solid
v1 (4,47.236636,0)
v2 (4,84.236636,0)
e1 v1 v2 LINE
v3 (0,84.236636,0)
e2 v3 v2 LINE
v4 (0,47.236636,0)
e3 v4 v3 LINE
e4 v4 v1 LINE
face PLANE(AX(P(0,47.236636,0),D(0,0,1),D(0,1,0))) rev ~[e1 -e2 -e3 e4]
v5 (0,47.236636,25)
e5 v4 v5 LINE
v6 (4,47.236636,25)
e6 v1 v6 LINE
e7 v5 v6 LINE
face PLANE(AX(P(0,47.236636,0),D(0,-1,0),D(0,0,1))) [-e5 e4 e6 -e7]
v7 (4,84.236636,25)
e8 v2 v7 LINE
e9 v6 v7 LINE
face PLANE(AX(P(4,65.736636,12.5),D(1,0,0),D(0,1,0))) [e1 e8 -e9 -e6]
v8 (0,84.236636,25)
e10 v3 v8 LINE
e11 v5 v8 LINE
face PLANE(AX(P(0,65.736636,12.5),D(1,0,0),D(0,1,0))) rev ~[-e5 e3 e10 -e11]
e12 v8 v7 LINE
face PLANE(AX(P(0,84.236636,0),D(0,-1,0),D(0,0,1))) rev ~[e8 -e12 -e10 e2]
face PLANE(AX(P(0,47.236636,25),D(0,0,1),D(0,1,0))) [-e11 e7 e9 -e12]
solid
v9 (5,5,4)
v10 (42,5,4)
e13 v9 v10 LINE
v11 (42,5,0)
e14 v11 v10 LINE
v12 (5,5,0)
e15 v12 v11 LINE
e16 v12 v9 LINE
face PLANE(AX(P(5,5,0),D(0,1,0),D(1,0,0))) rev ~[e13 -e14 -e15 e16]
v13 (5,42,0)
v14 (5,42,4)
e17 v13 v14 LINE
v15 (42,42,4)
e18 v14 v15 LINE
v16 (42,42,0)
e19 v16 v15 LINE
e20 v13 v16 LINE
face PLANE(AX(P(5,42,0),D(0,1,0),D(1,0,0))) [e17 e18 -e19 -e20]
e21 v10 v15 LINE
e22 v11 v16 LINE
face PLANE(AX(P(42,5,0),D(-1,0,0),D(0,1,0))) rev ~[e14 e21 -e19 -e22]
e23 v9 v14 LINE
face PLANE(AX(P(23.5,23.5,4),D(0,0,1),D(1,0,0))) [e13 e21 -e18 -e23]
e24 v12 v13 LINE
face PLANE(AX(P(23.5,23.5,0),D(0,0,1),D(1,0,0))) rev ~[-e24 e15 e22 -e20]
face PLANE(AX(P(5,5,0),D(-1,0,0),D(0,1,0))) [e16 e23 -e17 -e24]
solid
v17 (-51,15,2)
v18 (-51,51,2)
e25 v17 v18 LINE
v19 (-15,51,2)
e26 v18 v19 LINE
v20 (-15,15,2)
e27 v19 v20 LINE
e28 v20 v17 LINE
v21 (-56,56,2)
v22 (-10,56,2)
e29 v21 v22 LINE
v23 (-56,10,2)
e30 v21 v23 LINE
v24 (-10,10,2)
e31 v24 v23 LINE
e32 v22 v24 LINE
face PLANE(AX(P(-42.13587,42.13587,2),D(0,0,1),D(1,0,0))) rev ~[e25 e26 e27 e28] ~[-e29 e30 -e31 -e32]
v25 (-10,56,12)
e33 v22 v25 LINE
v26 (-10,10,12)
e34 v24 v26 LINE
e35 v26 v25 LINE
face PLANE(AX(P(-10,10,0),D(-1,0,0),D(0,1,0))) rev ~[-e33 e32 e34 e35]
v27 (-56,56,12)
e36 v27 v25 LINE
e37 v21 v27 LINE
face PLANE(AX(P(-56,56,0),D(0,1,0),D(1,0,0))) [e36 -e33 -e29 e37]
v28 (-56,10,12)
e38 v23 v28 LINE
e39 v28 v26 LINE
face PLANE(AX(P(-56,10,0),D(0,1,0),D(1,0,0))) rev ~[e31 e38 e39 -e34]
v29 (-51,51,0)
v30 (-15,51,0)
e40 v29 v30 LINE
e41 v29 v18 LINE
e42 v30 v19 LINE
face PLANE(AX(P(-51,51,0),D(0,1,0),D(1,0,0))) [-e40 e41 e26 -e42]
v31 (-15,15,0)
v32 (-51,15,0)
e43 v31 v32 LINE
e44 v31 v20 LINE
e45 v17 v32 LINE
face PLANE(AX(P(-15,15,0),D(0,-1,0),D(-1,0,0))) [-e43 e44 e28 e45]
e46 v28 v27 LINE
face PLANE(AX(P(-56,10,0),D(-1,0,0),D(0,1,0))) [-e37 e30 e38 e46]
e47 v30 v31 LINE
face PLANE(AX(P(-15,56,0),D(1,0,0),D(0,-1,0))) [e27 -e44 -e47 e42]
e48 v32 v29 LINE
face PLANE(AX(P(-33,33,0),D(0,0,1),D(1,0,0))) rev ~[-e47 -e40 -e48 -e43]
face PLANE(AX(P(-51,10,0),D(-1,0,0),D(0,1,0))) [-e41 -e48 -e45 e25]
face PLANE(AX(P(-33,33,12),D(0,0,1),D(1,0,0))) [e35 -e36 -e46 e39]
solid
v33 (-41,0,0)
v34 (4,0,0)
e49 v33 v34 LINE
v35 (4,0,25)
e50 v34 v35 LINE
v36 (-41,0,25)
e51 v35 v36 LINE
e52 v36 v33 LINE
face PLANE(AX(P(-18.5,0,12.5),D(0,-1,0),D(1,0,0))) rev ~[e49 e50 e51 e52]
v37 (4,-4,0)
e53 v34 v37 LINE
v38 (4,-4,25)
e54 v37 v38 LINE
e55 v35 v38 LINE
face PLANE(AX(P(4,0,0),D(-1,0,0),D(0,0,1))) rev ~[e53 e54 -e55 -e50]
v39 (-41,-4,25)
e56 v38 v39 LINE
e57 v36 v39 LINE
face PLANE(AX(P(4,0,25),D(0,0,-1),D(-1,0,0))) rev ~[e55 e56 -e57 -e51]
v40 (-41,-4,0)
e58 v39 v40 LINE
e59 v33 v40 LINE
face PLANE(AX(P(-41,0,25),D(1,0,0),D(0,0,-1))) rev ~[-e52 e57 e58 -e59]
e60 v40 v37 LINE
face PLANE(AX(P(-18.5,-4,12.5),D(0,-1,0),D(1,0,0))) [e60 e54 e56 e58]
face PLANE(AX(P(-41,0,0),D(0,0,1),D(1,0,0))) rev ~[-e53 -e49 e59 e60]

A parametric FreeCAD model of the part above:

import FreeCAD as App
import Part
import Sketcher

V = App.Vector


def add_polygon(sketch, points):
    """Adds a closed chain of lines whose ends are joined by coincident constraints."""
    first, n = sketch.GeometryCount, len(points)
    for a, b in zip(points, points[1:] + points[:1]):
        sketch.addGeometry(Part.LineSegment(App.Vector(*a, 0), App.Vector(*b, 0)), False)
    for i in range(n):
        sketch.addConstraint(Sketcher.Constraint("Coincident", first + i, 2, first + (i + 1) % n, 1))

doc = App.newDocument("Part")
body = doc.addObject("PartDesign::Body", "Body")

# Sketch on XY plane
sketch1 = doc.addObject("Sketcher::SketchObject", "Sketch")
body.addObject(sketch1)
sketch1.AttachmentSupport = (doc.XY_Plane, [""])
sketch1.MapMode = "FlatFace"
add_polygon(sketch1, [(5, 42), (5, 5), (42, 5), (42, 42)])  # lines 0-3
sketch1.addConstraint(Sketcher.Constraint("Vertical", 0))
sketch1.addConstraint(Sketcher.Constraint("Horizontal", 1))
sketch1.addConstraint(Sketcher.Constraint("Vertical", 2))
sketch1.addConstraint(Sketcher.Constraint("Horizontal", 3))
sketch1.addConstraint(Sketcher.Constraint("Equal", 3, 0))
sketch1.addConstraint(Sketcher.Constraint("DistanceX", 1, 1, 1, 2, 37.0))
sketch1.addConstraint(Sketcher.Constraint("DistanceX", -1, 1, 0, 2, 5.0))
sketch1.addConstraint(Sketcher.Constraint("DistanceY", -1, 1, 0, 2, 5.0))
pad1 = doc.addObject("PartDesign::Pad", "Pad")
body.addObject(pad1)
pad1.Profile = sketch1
pad1.Length = 4
body2 = doc.addObject("PartDesign::Body", "Body001")

# Sketch on XZ plane
sketch2 = doc.addObject("Sketcher::SketchObject", "Sketch001")
body2.addObject(sketch2)
sketch2.AttachmentSupport = (doc.getObject("XZ_Plane001"), [""])
sketch2.MapMode = "FlatFace"
add_polygon(sketch2, [(-41, 0), (4, 0), (4, 25), (-41, 25)])  # lines 0-3
sketch2.addConstraint(Sketcher.Constraint("Horizontal", 0))
sketch2.addConstraint(Sketcher.Constraint("Vertical", 1))
sketch2.addConstraint(Sketcher.Constraint("Horizontal", 2))
sketch2.addConstraint(Sketcher.Constraint("Vertical", 3))
sketch2.addConstraint(Sketcher.Constraint("PointOnObject", 0, 2, -1))
sketch2.addConstraint(Sketcher.Constraint("DistanceX", 0, 1, 0, 2, 45.0))
sketch2.addConstraint(Sketcher.Constraint("DistanceY", 1, 1, 1, 2, 25.0))
sketch2.addConstraint(Sketcher.Constraint("DistanceX", -1, 1, 0, 2, 4.0))
pad2 = doc.addObject("PartDesign::Pad", "Pad001")
body2.addObject(pad2)
pad2.Profile = sketch2
pad2.Length = 4
body3 = doc.addObject("PartDesign::Body", "Body002")

# Sketch on YZ plane
sketch3 = doc.addObject("Sketcher::SketchObject", "Sketch002")
body3.addObject(sketch3)
sketch3.AttachmentSupport = (doc.getObject("YZ_Plane002"), [""])
sketch3.MapMode = "FlatFace"
add_polygon(sketch3, [(47.236636, 25), (47.236636, 0), (84.236636, 0), (84.236636, 25)])  # lines 0-3
sketch3.addConstraint(Sketcher.Constraint("Vertical", 0))
sketch3.addConstraint(Sketcher.Constraint("Horizontal", 1))
sketch3.addConstraint(Sketcher.Constraint("Vertical", 2))
sketch3.addConstraint(Sketcher.Constraint("Horizontal", 3))
sketch3.addConstraint(Sketcher.Constraint("PointOnObject", 0, 2, -1))
sketch3.addConstraint(Sketcher.Constraint("DistanceX", 1, 1, 1, 2, 37.0))
sketch3.addConstraint(Sketcher.Constraint("DistanceY", 0, 2, 0, 1, 25.0))
sketch3.addConstraint(Sketcher.Constraint("DistanceX", -1, 1, 0, 2, 47.236636))
pad3 = doc.addObject("PartDesign::Pad", "Pad002")
body3.addObject(pad3)
pad3.Profile = sketch3
pad3.Length = 4
body4 = doc.addObject("PartDesign::Body", "Body003")

# Sketch on XY plane
sketch4 = doc.addObject("Sketcher::SketchObject", "Sketch003")
body4.addObject(sketch4)
sketch4.AttachmentSupport = (doc.getObject("XY_Plane003"), [""])
sketch4.MapMode = "FlatFace"
add_polygon(sketch4, [(-56, 56), (-56, 10), (-10, 10), (-10, 56)])  # lines 0-3
sketch4.addConstraint(Sketcher.Constraint("Vertical", 0))
sketch4.addConstraint(Sketcher.Constraint("Horizontal", 1))
sketch4.addConstraint(Sketcher.Constraint("Vertical", 2))
sketch4.addConstraint(Sketcher.Constraint("Horizontal", 3))
sketch4.addConstraint(Sketcher.Constraint("Equal", 3, 0))
sketch4.addConstraint(Sketcher.Constraint("DistanceX", 1, 1, 1, 2, 46.0))
sketch4.addConstraint(Sketcher.Constraint("DistanceX", 0, 2, -1, 1, 56.0))
sketch4.addConstraint(Sketcher.Constraint("DistanceY", -1, 1, 0, 2, 10.0))
pad4 = doc.addObject("PartDesign::Pad", "Pad003")
body4.addObject(pad4)
pad4.Profile = sketch4
pad4.Length = 12

# Sketch on XY plane
sketch5 = doc.addObject("Sketcher::SketchObject", "Sketch004")
body4.addObject(sketch5)
sketch5.AttachmentSupport = (doc.getObject("XY_Plane003"), [""])
sketch5.MapMode = "FlatFace"
add_polygon(sketch5, [(-10, 10), (-10, 56), (-15, 56), (-15, 15), (-56, 15), (-56, 10)])  # lines 0-5
sketch5.addConstraint(Sketcher.Constraint("Vertical", 0))
sketch5.addConstraint(Sketcher.Constraint("Horizontal", 1))
sketch5.addConstraint(Sketcher.Constraint("Vertical", 2))
sketch5.addConstraint(Sketcher.Constraint("Horizontal", 3))
sketch5.addConstraint(Sketcher.Constraint("Vertical", 4))
sketch5.addConstraint(Sketcher.Constraint("Horizontal", 5))
sketch5.addConstraint(Sketcher.Constraint("Equal", 5, 0))
sketch5.addConstraint(Sketcher.Constraint("Equal", 3, 2))
sketch5.addConstraint(Sketcher.Constraint("DistanceX", 1, 2, 1, 1, 5.0))
sketch5.addConstraint(Sketcher.Constraint("DistanceX", 3, 2, 3, 1, 41.0))
sketch5.addConstraint(Sketcher.Constraint("DistanceX", 0, 2, -1, 1, 10.0))
sketch5.addConstraint(Sketcher.Constraint("DistanceY", -1, 1, 0, 2, 56.0))
pocket1 = doc.addObject("PartDesign::Pocket", "Pocket")
body4.addObject(pocket1)
pocket1.Profile = sketch5
pocket1.Length = 2
pocket1.Reversed = True

# Sketch on XY plane
sketch6 = doc.addObject("Sketcher::SketchObject", "Sketch005")
body4.addObject(sketch6)
sketch6.AttachmentSupport = (doc.getObject("XY_Plane003"), [""])
sketch6.MapMode = "FlatFace"
add_polygon(sketch6, [(-10, 51), (-10, 56), (-56, 56), (-56, 10), (-51, 10), (-51, 51)])  # lines 0-5
sketch6.addConstraint(Sketcher.Constraint("Vertical", 0))
sketch6.addConstraint(Sketcher.Constraint("Horizontal", 1))
sketch6.addConstraint(Sketcher.Constraint("Vertical", 2))
sketch6.addConstraint(Sketcher.Constraint("Horizontal", 3))
sketch6.addConstraint(Sketcher.Constraint("Vertical", 4))
sketch6.addConstraint(Sketcher.Constraint("Horizontal", 5))
sketch6.addConstraint(Sketcher.Constraint("Equal", 3, 0))
sketch6.addConstraint(Sketcher.Constraint("Equal", 1, 2))
sketch6.addConstraint(Sketcher.Constraint("DistanceX", 1, 2, 1, 1, 46.0))
sketch6.addConstraint(Sketcher.Constraint("DistanceX", 3, 1, 3, 2, 5.0))
sketch6.addConstraint(Sketcher.Constraint("DistanceX", 0, 2, -1, 1, 10.0))
sketch6.addConstraint(Sketcher.Constraint("DistanceY", -1, 1, 0, 2, 56.0))
pocket2 = doc.addObject("PartDesign::Pocket", "Pocket001")
body4.addObject(pocket2)
pocket2.Profile = sketch6
pocket2.Length = 2
pocket2.Reversed = True

doc.recompute()
